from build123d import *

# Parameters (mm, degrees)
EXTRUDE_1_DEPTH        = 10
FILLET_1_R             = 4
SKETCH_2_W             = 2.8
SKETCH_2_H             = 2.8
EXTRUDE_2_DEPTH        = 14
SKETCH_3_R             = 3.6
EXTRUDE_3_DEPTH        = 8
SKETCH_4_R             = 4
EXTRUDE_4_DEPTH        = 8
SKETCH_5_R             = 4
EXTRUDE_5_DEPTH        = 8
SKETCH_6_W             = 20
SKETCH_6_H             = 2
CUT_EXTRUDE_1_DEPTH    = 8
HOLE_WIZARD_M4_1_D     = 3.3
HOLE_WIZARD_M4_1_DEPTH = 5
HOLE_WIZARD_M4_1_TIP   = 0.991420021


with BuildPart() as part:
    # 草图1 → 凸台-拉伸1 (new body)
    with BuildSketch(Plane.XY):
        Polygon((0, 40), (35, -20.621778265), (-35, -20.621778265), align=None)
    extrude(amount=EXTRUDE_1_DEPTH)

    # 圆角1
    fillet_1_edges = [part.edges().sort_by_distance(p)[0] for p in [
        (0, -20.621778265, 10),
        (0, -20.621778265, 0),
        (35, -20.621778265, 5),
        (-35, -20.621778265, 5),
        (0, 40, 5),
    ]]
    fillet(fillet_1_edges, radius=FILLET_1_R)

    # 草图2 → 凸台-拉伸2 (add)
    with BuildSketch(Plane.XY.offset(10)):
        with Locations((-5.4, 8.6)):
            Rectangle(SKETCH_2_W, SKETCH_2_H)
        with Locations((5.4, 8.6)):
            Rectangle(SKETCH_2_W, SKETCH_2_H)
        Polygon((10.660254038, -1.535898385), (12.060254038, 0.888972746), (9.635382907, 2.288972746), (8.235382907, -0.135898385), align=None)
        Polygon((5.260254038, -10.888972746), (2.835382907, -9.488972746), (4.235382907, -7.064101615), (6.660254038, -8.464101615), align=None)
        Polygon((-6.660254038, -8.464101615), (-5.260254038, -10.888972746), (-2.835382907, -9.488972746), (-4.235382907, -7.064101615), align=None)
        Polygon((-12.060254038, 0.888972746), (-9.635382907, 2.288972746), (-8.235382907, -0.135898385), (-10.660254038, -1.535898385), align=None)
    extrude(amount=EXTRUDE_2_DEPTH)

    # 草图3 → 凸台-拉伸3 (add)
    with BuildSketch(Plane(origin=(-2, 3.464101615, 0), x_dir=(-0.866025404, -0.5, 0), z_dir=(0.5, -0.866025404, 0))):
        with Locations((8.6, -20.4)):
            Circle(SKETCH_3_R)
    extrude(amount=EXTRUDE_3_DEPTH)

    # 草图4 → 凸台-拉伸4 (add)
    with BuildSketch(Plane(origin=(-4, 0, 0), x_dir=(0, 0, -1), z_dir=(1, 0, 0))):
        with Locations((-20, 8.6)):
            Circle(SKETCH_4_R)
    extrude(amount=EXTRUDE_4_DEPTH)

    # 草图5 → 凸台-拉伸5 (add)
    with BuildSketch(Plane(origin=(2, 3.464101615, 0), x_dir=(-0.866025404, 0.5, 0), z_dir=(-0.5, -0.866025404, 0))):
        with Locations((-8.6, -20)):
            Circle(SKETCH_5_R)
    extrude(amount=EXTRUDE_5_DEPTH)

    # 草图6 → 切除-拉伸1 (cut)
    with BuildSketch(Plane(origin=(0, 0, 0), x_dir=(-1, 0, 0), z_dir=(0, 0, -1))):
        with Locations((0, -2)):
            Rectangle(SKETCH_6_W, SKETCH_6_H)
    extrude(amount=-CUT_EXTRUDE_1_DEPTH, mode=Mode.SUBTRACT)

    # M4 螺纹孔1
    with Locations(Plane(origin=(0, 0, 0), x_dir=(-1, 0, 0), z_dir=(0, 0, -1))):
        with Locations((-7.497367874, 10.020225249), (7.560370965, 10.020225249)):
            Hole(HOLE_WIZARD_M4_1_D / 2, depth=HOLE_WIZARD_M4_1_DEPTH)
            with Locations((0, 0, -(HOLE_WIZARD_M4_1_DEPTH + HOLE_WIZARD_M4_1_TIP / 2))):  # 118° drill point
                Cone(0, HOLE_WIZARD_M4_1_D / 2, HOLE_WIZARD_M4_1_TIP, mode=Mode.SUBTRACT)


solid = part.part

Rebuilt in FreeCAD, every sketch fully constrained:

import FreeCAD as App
import Part
import Sketcher
Q = App.Units.Quantity


def edges_at(feature, points):
    """Names of the edges that pass closest to the given points."""
    edges = feature.Shape.Edges
    near = lambda p: min(range(len(edges)), key=lambda i: edges[i].distToShape(Part.Vertex(*p))[0])
    return sorted({f"Edge{near(p) + 1}" for p in points})

doc = App.newDocument("Part")
body = doc.addObject("PartDesign::Body", "Body")

# Sketch on XY plane
sketch1 = body.newObject("Sketcher::SketchObject", "Sketch")
sketch1.AttachmentSupport = (doc.getObject("XY_Plane"), [""])
sketch1.MapMode = "FlatFace"
sketch1.addGeometry(Part.LineSegment(App.Vector(35, -21, 0), App.Vector(0, 40, 0)), False)
sketch1.addGeometry(Part.LineSegment(App.Vector(0, 40, 0), App.Vector(-35, -21, 0)), False)
sketch1.addGeometry(Part.LineSegment(App.Vector(-35, -21, 0), App.Vector(35, -21, 0)), False)
sketch1.addConstraint(Sketcher.Constraint("Coincident", 0, 2, 1, 1))
sketch1.addConstraint(Sketcher.Constraint("Coincident", 1, 2, 2, 1))
sketch1.addConstraint(Sketcher.Constraint("Coincident", 2, 2, 0, 1))
sketch1.addConstraint(Sketcher.Constraint("Horizontal", 2))
sketch1.addConstraint(Sketcher.Constraint("PointOnObject", 0, 2, -2))
sketch1.addConstraint(Sketcher.Constraint("Equal", 0, 1))
sketch1.addConstraint(Sketcher.Constraint("DistanceX", 2, 1, 2, 2, 70.0))
sketch1.addConstraint(Sketcher.Constraint("Angle", 0, Q("120 deg")))
sketch1.addConstraint(Sketcher.Constraint("DistanceY", -1, 1, 0, 2, 40.0))
pad1 = body.newObject("PartDesign::Pad", "Pad")
pad1.Profile = sketch1
pad1.Length = 10
doc.recompute()

fillet = body.newObject("PartDesign::Fillet", "Fillet")
fillet.Base = (pad1, edges_at(pad1, [
    (0, -20.622, 10),
    (0, -20.622, 0),
    (35, -20.622, 5),
    (-35, -20.622, 5),
    (0, 40, 5),
]))
fillet.Radius = 4

# Sketch on XY plane
sketch2 = body.newObject("Sketcher::SketchObject", "Sketch001")
sketch2.AttachmentSupport = (doc.getObject("XY_Plane"), [""])
sketch2.MapMode = "FlatFace"
sketch2.AttachmentOffset = App.Placement(App.Vector(0, 0, 10), App.Rotation())
sketch2.addGeometry(Part.LineSegment(App.Vector(-6.8, 10, 0), App.Vector(-6.8, 7.2, 0)), False)
sketch2.addGeometry(Part.LineSegment(App.Vector(-6.8, 7.2, 0), App.Vector(-4, 7.2, 0)), False)
sketch2.addGeometry(Part.LineSegment(App.Vector(-4, 7.2, 0), App.Vector(-4, 10, 0)), False)
sketch2.addGeometry(Part.LineSegment(App.Vector(-4, 10, 0), App.Vector(-6.8, 10, 0)), False)
sketch2.addGeometry(Part.LineSegment(App.Vector(4, 10, 0), App.Vector(4, 7.2, 0)), False)
sketch2.addGeometry(Part.LineSegment(App.Vector(4, 7.2, 0), App.Vector(6.8, 7.2, 0)), False)
sketch2.addGeometry(Part.LineSegment(App.Vector(6.8, 7.2, 0), App.Vector(6.8, 10, 0)), False)
sketch2.addGeometry(Part.LineSegment(App.Vector(6.8, 10, 0), App.Vector(4, 10, 0)), False)
sketch2.addGeometry(Part.LineSegment(App.Vector(10.7, -1.5, 0), App.Vector(12.1, 0.9, 0)), False)
sketch2.addGeometry(Part.LineSegment(App.Vector(12.1, 0.9, 0), App.Vector(9.6, 2.3, 0)), False)
sketch2.addGeometry(Part.LineSegment(App.Vector(9.6, 2.3, 0), App.Vector(8.2, -0.1, 0)), False)
sketch2.addGeometry(Part.LineSegment(App.Vector(8.2, -0.1, 0), App.Vector(10.7, -1.5, 0)), False)
sketch2.addGeometry(Part.LineSegment(App.Vector(2.8, -9.5, 0), App.Vector(5.3, -10.9, 0)), False)
sketch2.addGeometry(Part.LineSegment(App.Vector(5.3, -10.9, 0), App.Vector(6.7, -8.5, 0)), False)
sketch2.addGeometry(Part.LineSegment(App.Vector(6.7, -8.5, 0), App.Vector(4.2, -7.1, 0)), False)
sketch2.addGeometry(Part.LineSegment(App.Vector(4.2, -7.1, 0), App.Vector(2.8, -9.5, 0)), False)
sketch2.addGeometry(Part.LineSegment(App.Vector(-6.7, -8.5, 0), App.Vector(-5.3, -10.9, 0)), False)
sketch2.addGeometry(Part.LineSegment(App.Vector(-5.3, -10.9, 0), App.Vector(-2.8, -9.5, 0)), False)
sketch2.addGeometry(Part.LineSegment(App.Vector(-2.8, -9.5, 0), App.Vector(-4.2, -7.1, 0)), False)
sketch2.addGeometry(Part.LineSegment(App.Vector(-4.2, -7.1, 0), App.Vector(-6.7, -8.5, 0)), False)
sketch2.addGeometry(Part.LineSegment(App.Vector(-9.6, 2.3, 0), App.Vector(-12.1, 0.9, 0)), False)
sketch2.addGeometry(Part.LineSegment(App.Vector(-12.1, 0.9, 0), App.Vector(-10.7, -1.5, 0)), False)
sketch2.addGeometry(Part.LineSegment(App.Vector(-10.7, -1.5, 0), App.Vector(-8.2, -0.1, 0)), False)
sketch2.addGeometry(Part.LineSegment(App.Vector(-8.2, -0.1, 0), App.Vector(-9.6, 2.3, 0)), False)
sketch2.addConstraint(Sketcher.Constraint("Coincident", 0, 2, 1, 1))
sketch2.addConstraint(Sketcher.Constraint("Coincident", 1, 2, 2, 1))
sketch2.addConstraint(Sketcher.Constraint("Coincident", 2, 2, 3, 1))
sketch2.addConstraint(Sketcher.Constraint("Coincident", 3, 2, 0, 1))
sketch2.addConstraint(Sketcher.Constraint("Coincident", 4, 2, 5, 1))
sketch2.addConstraint(Sketcher.Constraint("Coincident", 5, 2, 6, 1))
sketch2.addConstraint(Sketcher.Constraint("Coincident", 6, 2, 7, 1))
sketch2.addConstraint(Sketcher.Constraint("Coincident", 7, 2, 4, 1))
sketch2.addConstraint(Sketcher.Constraint("Coincident", 8, 2, 9, 1))
sketch2.addConstraint(Sketcher.Constraint("Coincident", 9, 2, 10, 1))
sketch2.addConstraint(Sketcher.Constraint("Coincident", 10, 2, 11, 1))
sketch2.addConstraint(Sketcher.Constraint("Coincident", 11, 2, 8, 1))
sketch2.addConstraint(Sketcher.Constraint("Coincident", 12, 2, 13, 1))
sketch2.addConstraint(Sketcher.Constraint("Coincident", 13, 2, 14, 1))
sketch2.addConstraint(Sketcher.Constraint("Coincident", 14, 2, 15, 1))
sketch2.addConstraint(Sketcher.Constraint("Coincident", 15, 2, 12, 1))
sketch2.addConstraint(Sketcher.Constraint("Coincident", 16, 2, 17, 1))
sketch2.addConstraint(Sketcher.Constraint("Coincident", 17, 2, 18, 1))
sketch2.addConstraint(Sketcher.Constraint("Coincident", 18, 2, 19, 1))
sketch2.addConstraint(Sketcher.Constraint("Coincident", 19, 2, 16, 1))
sketch2.addConstraint(Sketcher.Constraint("Coincident", 20, 2, 21, 1))
sketch2.addConstraint(Sketcher.Constraint("Coincident", 21, 2, 22, 1))
sketch2.addConstraint(Sketcher.Constraint("Coincident", 22, 2, 23, 1))
sketch2.addConstraint(Sketcher.Constraint("Coincident", 23, 2, 20, 1))
sketch2.addConstraint(Sketcher.Constraint("Vertical", 0))
sketch2.addConstraint(Sketcher.Constraint("Horizontal", 1))
sketch2.addConstraint(Sketcher.Constraint("Vertical", 2))
sketch2.addConstraint(Sketcher.Constraint("Horizontal", 3))
sketch2.addConstraint(Sketcher.Constraint("Vertical", 4))
sketch2.addConstraint(Sketcher.Constraint("Horizontal", 5))
sketch2.addConstraint(Sketcher.Constraint("Vertical", 6))
sketch2.addConstraint(Sketcher.Constraint("Horizontal", 7))
sketch2.addConstraint(Sketcher.Constraint("Symmetric", 1, 2, 4, 2, -2))
sketch2.addConstraint(Sketcher.Constraint("Symmetric", 3, 2, 6, 2, -2))
sketch2.addConstraint(Sketcher.Constraint("Symmetric", 12, 2, 16, 2, -2))
sketch2.addConstraint(Sketcher.Constraint("Symmetric", 15, 2, 17, 2, -2))
sketch2.addConstraint(Sketcher.Constraint("Symmetric", 14, 2, 18, 2, -2))
sketch2.addConstraint(Sketcher.Constraint("Symmetric", 13, 2, 19, 2, -2))
sketch2.addConstraint(Sketcher.Constraint("Symmetric", 8, 2, 20, 2, -2))
sketch2.addConstraint(Sketcher.Constraint("Symmetric", 11, 2, 21, 2, -2))
sketch2.addConstraint(Sketcher.Constraint("Symmetric", 10, 2, 22, 2, -2))
sketch2.addConstraint(Sketcher.Constraint("Symmetric", 9, 2, 23, 2, -2))
sketch2.addConstraint(Sketcher.Constraint("Perpendicular", 8, 9))
sketch2.addConstraint(Sketcher.Constraint("Perpendicular", 9, 10))
sketch2.addConstraint(Sketcher.Constraint("Perpendicular", 10, 11))
sketch2.addConstraint(Sketcher.Constraint("Parallel", 11, 12))
sketch2.addConstraint(Sketcher.Constraint("Perpendicular", 12, 13))
sketch2.addConstraint(Sketcher.Constraint("Perpendicular", 13, 14))
sketch2.addConstraint(Sketcher.Constraint("Perpendicular", 14, 15))
sketch2.addConstraint(Sketcher.Constraint("Equal", 7, 0))
sketch2.addConstraint(Sketcher.Constraint("Equal", 8, 9))
sketch2.addConstraint(Sketcher.Constraint("Equal", 11, 12))
sketch2.addConstraint(Sketcher.Constraint("Equal", 12, 13))
sketch2.addConstraint(Sketcher.Constraint("Angle", 8, Q("60 deg")))
sketch2.addConstraint(Sketcher.Constraint("DistanceX", 1, 1, 1, 2, 2.8))
sketch2.addConstraint(Sketcher.Constraint("DistanceX", 1, 2, -1, 1, 4.0))
sketch2.addConstraint(Sketcher.Constraint("DistanceY", -1, 1, 2, 2, 10.0))
sketch2.addConstraint(Sketcher.Constraint("DistanceX", 13, 2, 11, 2, 4.0))
sketch2.addConstraint(Sketcher.Constraint("Distance", 8, 2.8))
sketch2.addConstraint(Sketcher.Constraint("DistanceY", 10, 2, -1, 1, 0.135898))
sketch2.addConstraint(Sketcher.Constraint("DistanceY", 13, 2, -1, 1, 8.464102))
sketch2.addConstraint(Sketcher.Constraint("DistanceX", 16, 2, 12, 2, 10.520508))
pad2 = body.newObject("PartDesign::Pad", "Pad001")
pad2.Profile = sketch2
pad2.Length = 14

# Sketch on an angled plane
sketch3 = body.newObject("Sketcher::SketchObject", "Sketch002")
sketch3.Placement = App.Placement(App.Vector(-2, 3.464102, 0), App.Rotation(App.Vector(-0.866025404, -0.5, 0), App.Vector(0, 0, -1), App.Vector(0.5, -0.866025404, 0), "ZXY"))
sketch3.addGeometry(Part.Circle(App.Vector(8.6, -20.4, 0), App.Vector(0, 0, 1), 3.6), False)
sketch3.addConstraint(Sketcher.Constraint("Diameter", 0, 7.2))
sketch3.addConstraint(Sketcher.Constraint("DistanceX", -1, 1, 0, 3, 8.6))
sketch3.addConstraint(Sketcher.Constraint("DistanceY", 0, 3, -1, 1, 20.4))
pad3 = body.newObject("PartDesign::Pad", "Pad002")
pad3.Profile = sketch3
pad3.Length = 8

# Sketch on YZ plane
sketch4 = body.newObject("Sketcher::SketchObject", "Sketch003")
sketch4.AttachmentSupport = (doc.getObject("YZ_Plane"), [""])
sketch4.MapMode = "FlatFace"
sketch4.AttachmentOffset = App.Placement(App.Vector(0, 0, -4), App.Rotation())
sketch4.addGeometry(Part.Circle(App.Vector(8.6, 20, 0), App.Vector(0, 0, 1), 4), False)
sketch4.addConstraint(Sketcher.Constraint("Diameter", 0, 8.0))
sketch4.addConstraint(Sketcher.Constraint("DistanceY", -1, 1, 0, 3, 20.0))
sketch4.addConstraint(Sketcher.Constraint("DistanceX", -1, 1, 0, 3, 8.6))
pad4 = body.newObject("PartDesign::Pad", "Pad003")
pad4.Profile = sketch4
pad4.Length = 8

# Sketch on an angled plane
sketch5 = body.newObject("Sketcher::SketchObject", "Sketch004")
sketch5.Placement = App.Placement(App.Vector(2, 3.464102, 0), App.Rotation(App.Vector(-0.866025404, 0.5, 0), App.Vector(0, 0, -1), App.Vector(-0.5, -0.866025404, 0), "ZXY"))
sketch5.addGeometry(Part.Circle(App.Vector(-8.6, -20, 0), App.Vector(0, 0, 1), 4), False)
sketch5.addConstraint(Sketcher.Constraint("Diameter", 0, 8.0))
sketch5.addConstraint(Sketcher.Constraint("DistanceY", 0, 3, -1, 1, 20.0))
sketch5.addConstraint(Sketcher.Constraint("DistanceX", 0, 3, -1, 1, 8.6))
pad5 = body.newObject("PartDesign::Pad", "Pad004")
pad5.Profile = sketch5
pad5.Length = 8

# Sketch on XY plane
sketch6 = body.newObject("Sketcher::SketchObject", "Sketch005")
sketch6.AttachmentSupport = (doc.getObject("XY_Plane"), [""])
sketch6.MapMode = "FlatFace"
sketch6.addGeometry(Part.LineSegment(App.Vector(10, -1, 0), App.Vector(10, -3, 0)), False)
sketch6.addGeometry(Part.LineSegment(App.Vector(10, -3, 0), App.Vector(-10, -3, 0)), False)
sketch6.addGeometry(Part.LineSegment(App.Vector(-10, -3, 0), App.Vector(-10, -1, 0)), False)
sketch6.addGeometry(Part.LineSegment(App.Vector(-10, -1, 0), App.Vector(10, -1, 0)), False)
sketch6.addConstraint(Sketcher.Constraint("Coincident", 0, 2, 1, 1))
sketch6.addConstraint(Sketcher.Constraint("Coincident", 1, 2, 2, 1))
sketch6.addConstraint(Sketcher.Constraint("Coincident", 2, 2, 3, 1))
sketch6.addConstraint(Sketcher.Constraint("Coincident", 3, 2, 0, 1))
sketch6.addConstraint(Sketcher.Constraint("Vertical", 0))
sketch6.addConstraint(Sketcher.Constraint("Horizontal", 1))
sketch6.addConstraint(Sketcher.Constraint("Vertical", 2))
sketch6.addConstraint(Sketcher.Constraint("Horizontal", 3))
sketch6.addConstraint(Sketcher.Constraint("DistanceX", 1, 2, 1, 1, 20.0))
sketch6.addConstraint(Sketcher.Constraint("DistanceY", 0, 2, 0, 1, 2.0))
sketch6.addConstraint(Sketcher.Constraint("DistanceX", -1, 1, 0, 2, 10.0))
sketch6.addConstraint(Sketcher.Constraint("DistanceY", 0, 2, -1, 1, 3.0))
pocket1 = body.newObject("PartDesign::Pocket", "Pocket")
pocket1.Profile = sketch6
pocket1.Length = 8
pocket1.Reversed = True

# Sketch on XY plane
sketch7 = body.newObject("Sketcher::SketchObject", "Sketch006")
sketch7.AttachmentSupport = (doc.getObject("XY_Plane"), [""])
sketch7.MapMode = "FlatFace"
sketch7.addGeometry(Part.Circle(App.Vector(7.5, 10, 0), App.Vector(0, 0, 1), 1.6), False)
sketch7.addGeometry(Part.Circle(App.Vector(-7.6, 10, 0), App.Vector(0, 0, 1), 1.6), False)
sketch7.addConstraint(Sketcher.Constraint("Equal", 0, 1))
sketch7.addConstraint(Sketcher.Constraint("Horizontal", 0, 3, 1, 3))
sketch7.addConstraint(Sketcher.Constraint("Diameter", 0, 3.3))
sketch7.addConstraint(Sketcher.Constraint("DistanceX", 1, 3, -1, 1, 7.560371))
sketch7.addConstraint(Sketcher.Constraint("DistanceX", 1, 3, 0, 3, 15.057739))
sketch7.addConstraint(Sketcher.Constraint("DistanceY", -1, 1, 0, 3, 10.020225))
doc.recompute()
hole = body.newObject("PartDesign::Hole", "Hole")
hole.Profile = sketch7
hole.ThreadType = "None"
hole.Diameter = 3.3
hole.DepthType = "Dimension"
hole.Depth = 5
hole.DrillPoint = "Angled"
hole.DrillPointAngle = 118
hole.Reversed = True

doc.recompute()
